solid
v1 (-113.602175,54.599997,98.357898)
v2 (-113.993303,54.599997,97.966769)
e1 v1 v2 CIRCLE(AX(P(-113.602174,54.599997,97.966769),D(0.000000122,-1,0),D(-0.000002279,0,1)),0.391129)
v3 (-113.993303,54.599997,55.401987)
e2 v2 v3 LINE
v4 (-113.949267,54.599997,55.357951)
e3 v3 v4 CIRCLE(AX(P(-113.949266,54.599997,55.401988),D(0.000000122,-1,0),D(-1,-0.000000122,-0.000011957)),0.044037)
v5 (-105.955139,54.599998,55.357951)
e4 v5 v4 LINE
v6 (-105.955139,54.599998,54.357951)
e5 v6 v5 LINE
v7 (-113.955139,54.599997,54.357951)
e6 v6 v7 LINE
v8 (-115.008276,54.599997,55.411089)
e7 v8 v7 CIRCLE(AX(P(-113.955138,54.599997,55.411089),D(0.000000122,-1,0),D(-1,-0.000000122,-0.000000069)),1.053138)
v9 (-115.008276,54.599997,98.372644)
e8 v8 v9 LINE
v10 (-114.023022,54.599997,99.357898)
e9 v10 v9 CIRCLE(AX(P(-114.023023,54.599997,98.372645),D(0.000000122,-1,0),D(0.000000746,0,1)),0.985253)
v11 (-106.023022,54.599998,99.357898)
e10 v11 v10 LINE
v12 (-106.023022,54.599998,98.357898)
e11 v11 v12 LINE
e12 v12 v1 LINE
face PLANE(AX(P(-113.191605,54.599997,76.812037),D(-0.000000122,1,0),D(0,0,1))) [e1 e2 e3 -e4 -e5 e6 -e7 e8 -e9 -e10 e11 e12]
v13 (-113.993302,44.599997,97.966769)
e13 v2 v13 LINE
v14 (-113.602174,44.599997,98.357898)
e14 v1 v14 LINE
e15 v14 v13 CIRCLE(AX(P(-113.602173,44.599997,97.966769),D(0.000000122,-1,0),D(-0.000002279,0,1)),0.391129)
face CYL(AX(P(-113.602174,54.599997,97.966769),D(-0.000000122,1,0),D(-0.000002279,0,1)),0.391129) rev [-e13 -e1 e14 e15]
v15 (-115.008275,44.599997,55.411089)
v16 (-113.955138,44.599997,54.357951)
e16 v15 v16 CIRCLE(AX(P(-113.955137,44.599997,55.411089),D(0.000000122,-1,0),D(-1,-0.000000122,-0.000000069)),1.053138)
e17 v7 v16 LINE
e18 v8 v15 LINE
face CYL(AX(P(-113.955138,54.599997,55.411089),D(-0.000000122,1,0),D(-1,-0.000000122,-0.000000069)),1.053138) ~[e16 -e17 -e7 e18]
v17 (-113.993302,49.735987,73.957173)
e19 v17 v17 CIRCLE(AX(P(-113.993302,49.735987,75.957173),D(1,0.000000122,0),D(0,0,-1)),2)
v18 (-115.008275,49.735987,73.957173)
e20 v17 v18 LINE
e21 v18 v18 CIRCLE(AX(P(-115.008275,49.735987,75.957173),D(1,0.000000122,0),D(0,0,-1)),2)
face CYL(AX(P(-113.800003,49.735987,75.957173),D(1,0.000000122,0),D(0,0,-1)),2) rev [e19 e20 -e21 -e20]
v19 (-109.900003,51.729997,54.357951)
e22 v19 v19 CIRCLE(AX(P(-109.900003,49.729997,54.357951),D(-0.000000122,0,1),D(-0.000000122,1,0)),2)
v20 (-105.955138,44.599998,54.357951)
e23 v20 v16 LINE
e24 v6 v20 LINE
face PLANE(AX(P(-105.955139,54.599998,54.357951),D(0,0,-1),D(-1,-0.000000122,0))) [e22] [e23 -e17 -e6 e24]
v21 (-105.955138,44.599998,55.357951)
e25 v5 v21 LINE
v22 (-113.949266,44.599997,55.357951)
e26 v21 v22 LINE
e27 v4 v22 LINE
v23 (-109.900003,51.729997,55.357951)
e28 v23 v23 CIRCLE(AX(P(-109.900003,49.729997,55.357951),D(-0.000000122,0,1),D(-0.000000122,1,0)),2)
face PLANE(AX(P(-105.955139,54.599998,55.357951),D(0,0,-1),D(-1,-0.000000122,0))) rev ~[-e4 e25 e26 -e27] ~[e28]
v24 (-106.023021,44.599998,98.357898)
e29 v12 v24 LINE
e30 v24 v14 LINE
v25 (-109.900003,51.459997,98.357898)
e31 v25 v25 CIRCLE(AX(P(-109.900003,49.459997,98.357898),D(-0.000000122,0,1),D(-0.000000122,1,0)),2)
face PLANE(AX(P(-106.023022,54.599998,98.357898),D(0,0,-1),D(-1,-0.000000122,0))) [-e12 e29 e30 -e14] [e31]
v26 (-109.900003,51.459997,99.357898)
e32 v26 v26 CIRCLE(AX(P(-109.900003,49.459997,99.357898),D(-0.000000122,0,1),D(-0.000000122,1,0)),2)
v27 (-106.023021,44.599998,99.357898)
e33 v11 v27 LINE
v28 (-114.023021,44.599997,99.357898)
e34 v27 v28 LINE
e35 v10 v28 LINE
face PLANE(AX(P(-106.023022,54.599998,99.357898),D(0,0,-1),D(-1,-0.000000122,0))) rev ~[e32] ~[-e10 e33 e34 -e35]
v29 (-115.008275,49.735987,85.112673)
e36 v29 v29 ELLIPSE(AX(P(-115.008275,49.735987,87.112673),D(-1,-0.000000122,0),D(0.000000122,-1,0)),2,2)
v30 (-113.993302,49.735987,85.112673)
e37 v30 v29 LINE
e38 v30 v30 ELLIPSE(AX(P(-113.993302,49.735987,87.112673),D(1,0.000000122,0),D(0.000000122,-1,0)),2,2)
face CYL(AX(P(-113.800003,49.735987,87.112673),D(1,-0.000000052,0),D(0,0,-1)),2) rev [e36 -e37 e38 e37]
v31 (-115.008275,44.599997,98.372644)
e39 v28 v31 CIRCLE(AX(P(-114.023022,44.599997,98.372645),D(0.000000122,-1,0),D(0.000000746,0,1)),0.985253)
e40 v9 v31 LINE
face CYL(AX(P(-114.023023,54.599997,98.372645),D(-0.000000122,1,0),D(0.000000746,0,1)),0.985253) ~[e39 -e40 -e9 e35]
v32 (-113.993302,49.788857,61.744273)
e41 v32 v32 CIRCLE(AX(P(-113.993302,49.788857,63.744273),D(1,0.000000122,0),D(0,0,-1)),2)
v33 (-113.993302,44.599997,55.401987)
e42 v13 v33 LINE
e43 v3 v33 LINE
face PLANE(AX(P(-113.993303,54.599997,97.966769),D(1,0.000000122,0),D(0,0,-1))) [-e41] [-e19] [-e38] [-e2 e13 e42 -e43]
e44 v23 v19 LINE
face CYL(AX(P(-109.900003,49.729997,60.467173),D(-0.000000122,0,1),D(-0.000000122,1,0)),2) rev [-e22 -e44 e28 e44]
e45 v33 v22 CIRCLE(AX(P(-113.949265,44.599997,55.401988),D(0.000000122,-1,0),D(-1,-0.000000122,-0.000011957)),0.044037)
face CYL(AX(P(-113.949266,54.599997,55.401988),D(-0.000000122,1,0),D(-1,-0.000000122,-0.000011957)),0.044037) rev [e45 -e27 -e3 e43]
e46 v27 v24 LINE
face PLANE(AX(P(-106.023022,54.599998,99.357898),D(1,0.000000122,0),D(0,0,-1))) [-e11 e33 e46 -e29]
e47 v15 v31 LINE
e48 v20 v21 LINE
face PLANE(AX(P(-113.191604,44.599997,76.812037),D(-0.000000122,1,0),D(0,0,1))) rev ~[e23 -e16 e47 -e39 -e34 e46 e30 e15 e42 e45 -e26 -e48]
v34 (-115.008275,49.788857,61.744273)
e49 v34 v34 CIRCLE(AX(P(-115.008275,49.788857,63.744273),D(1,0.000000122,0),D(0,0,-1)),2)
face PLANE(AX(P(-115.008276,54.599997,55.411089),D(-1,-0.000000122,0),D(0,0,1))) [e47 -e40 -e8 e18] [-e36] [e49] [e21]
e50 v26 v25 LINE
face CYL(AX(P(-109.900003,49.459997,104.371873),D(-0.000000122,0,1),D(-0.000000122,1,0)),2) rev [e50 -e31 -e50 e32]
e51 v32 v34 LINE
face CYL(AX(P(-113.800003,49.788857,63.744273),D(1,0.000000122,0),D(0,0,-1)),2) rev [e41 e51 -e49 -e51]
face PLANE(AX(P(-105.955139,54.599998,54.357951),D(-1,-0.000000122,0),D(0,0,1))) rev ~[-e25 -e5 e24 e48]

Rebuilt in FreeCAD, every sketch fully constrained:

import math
import FreeCAD as App
import Part
import Sketcher

V = App.Vector
Q = App.Units.Quantity

doc = App.newDocument("Part")
body = doc.addObject("PartDesign::Body", "Body")

sketch1 = body.newObject("Sketcher::SketchObject", "Sketch")
sketch1.AttachmentSupport = (doc.getObject("XY_Plane"), [""])
sketch1.MapMode = "FlatFace"
sketch1.addGeometry(Part.Circle(V(0, 0, 0), V(0, 0, 1), 2), False)
sketch1.addConstraint([
    Sketcher.Constraint("Coincident", 0, 3, -1, 1),
    Sketcher.Constraint("Diameter", 0, Q("4 mm")),
])
pad1 = body.newObject("PartDesign::Pad", "Pad")
pad1.Profile = sketch1
pad1.Length = 10
body2 = doc.addObject("PartDesign::Body", "Body001")
doc.recompute()

body.Placement = App.Placement(V(0, 0, 0), App.Rotation(V(0, 1, 0), 90))
boolean = body2.newObject("PartDesign::Boolean", "Boolean")
boolean.Type = "Fuse"
boolean.addObjects([body])
body3 = doc.addObject("PartDesign::Body", "Body002")
doc.recompute()

body2.Placement = App.Placement(V(15.49, 3.9, 4.87), App.Rotation(V(0, 0, 1), 0.000007))
boolean2 = body3.newObject("PartDesign::Boolean", "Boolean001")
boolean2.Type = "Fuse"
boolean2.addObjects([body2])
body4 = doc.addObject("PartDesign::Body", "Body003")

sketch2 = body4.newObject("Sketcher::SketchObject", "Sketch001")
sketch2.AttachmentSupport = (doc.getObject("XY_Plane003"), [""])
sketch2.MapMode = "FlatFace"
sketch2.addGeometry(Part.Circle(V(0, 0, 0), V(0, 0, 1), 2), False)
sketch2.addConstraint([
    Sketcher.Constraint("Coincident", 0, 3, -1, 1),
    Sketcher.Constraint("Diameter", 0, Q("4 mm")),
])
pad2 = body4.newObject("PartDesign::Pad", "Pad001")
pad2.Profile = sketch2
pad2.Length = 10
body5 = doc.addObject("PartDesign::Body", "Body004")
doc.recompute()

body4.Placement = App.Placement(V(0, 0, 0), App.Rotation(V(0, 1, 0), 90))
boolean3 = body5.newObject("PartDesign::Boolean", "Boolean002")
boolean3.Type = "Fuse"
boolean3.addObjects([body4])
body6 = doc.addObject("PartDesign::Body", "Body005")
doc.recompute()

body5.Placement = App.Placement(V(-28.4147, 3.9, 5.14), App.Rotation(V(0, 0, 1), 0.000007))
boolean4 = body6.newObject("PartDesign::Boolean", "Boolean003")
boolean4.Type = "Fuse"
boolean4.addObjects([body5])
body7 = doc.addObject("PartDesign::Body", "Body006")

sketch3 = body7.newObject("Sketcher::SketchObject", "Sketch002")
sketch3.AttachmentSupport = (doc.getObject("XY_Plane006"), [""])
sketch3.MapMode = "FlatFace"
sketch3.addGeometry(Part.Circle(V(0, 0, 0), V(0, 0, 1), 2), False)
sketch3.addConstraint([
    Sketcher.Constraint("Coincident", 0, 3, -1, 1),
    Sketcher.Constraint("Diameter", 0, Q("4 mm")),
])
pad3 = body7.newObject("PartDesign::Pad", "Pad002")
pad3.Profile = sketch3
pad3.Length = 2
body8 = doc.addObject("PartDesign::Body", "Body007")
doc.recompute()

body7.Placement = App.Placement(V(0, 0, 0), App.Rotation(V(1, 0, 0), 271.492946))
boolean5 = body8.newObject("PartDesign::Boolean", "Boolean004")
boolean5.Type = "Fuse"
boolean5.addObjects([body7])
body9 = doc.addObject("PartDesign::Body", "Body008")
doc.recompute()

body8.Placement = App.Placement(V(0, 0, 0), App.Rotation(V(0, 1, 0), 272.98249))
boolean6 = body9.newObject("PartDesign::Boolean", "Boolean005")
boolean6.Type = "Fuse"
boolean6.addObjects([body8])
body10 = doc.addObject("PartDesign::Body", "Body009")
doc.recompute()

body9.Placement = App.Placement(V(-26, 5.29, 4.9), App.Rotation(V(0, 0, 1), 267.755985))
boolean7 = body10.newObject("PartDesign::Boolean", "Boolean006")
boolean7.Type = "Fuse"
boolean7.addObjects([body9])
body11 = doc.addObject("PartDesign::Body", "Body010")

sketch4 = body11.newObject("Sketcher::SketchObject", "Sketch003")
sketch4.AttachmentSupport = (doc.getObject("XY_Plane010"), [""])
sketch4.MapMode = "FlatFace"
sketch4.addGeometry(Part.Circle(V(0, 0, 0), V(0, 0, 1), 2), False)
sketch4.addConstraint([
    Sketcher.Constraint("Coincident", 0, 3, -1, 1),
    Sketcher.Constraint("Diameter", 0, Q("4 mm")),
])
pad4 = body11.newObject("PartDesign::Pad", "Pad003")
pad4.Profile = sketch4
pad4.Length = 2
body12 = doc.addObject("PartDesign::Body", "Body011")
doc.recompute()

body11.Placement = App.Placement(V(-11.1555, 0, 4.86401), App.Rotation(V(1, 0, 0), 90.00001))
boolean8 = body12.newObject("PartDesign::Boolean", "Boolean007")
boolean8.Type = "Fuse"
boolean8.addObjects([body11])
body13 = doc.addObject("PartDesign::Body", "Body012")

sketch5 = body13.newObject("Sketcher::SketchObject", "Sketch004")
sketch5.AttachmentSupport = (doc.getObject("XY_Plane012"), [""])
sketch5.MapMode = "FlatFace"
sketch5.addGeometry(Part.Circle(V(0, 0, 0), V(0, 0, 1), 2), False)
sketch5.addConstraint([
    Sketcher.Constraint("Coincident", 0, 3, -1, 1),
    Sketcher.Constraint("Diameter", 0, Q("4 mm")),
])
pad5 = body13.newObject("PartDesign::Pad", "Pad004")
pad5.Profile = sketch5
pad5.Length = 2
body14 = doc.addObject("PartDesign::Body", "Body013")
doc.recompute()

body13.Placement = App.Placement(V(0, 0, 0), App.Rotation(V(1, 0, 0), 90))
boolean9 = body14.newObject("PartDesign::Boolean", "Boolean008")
boolean9.Type = "Fuse"
boolean9.addObjects([body13])
body15 = doc.addObject("PartDesign::Body", "Body014")
doc.recompute()

body14.Placement = App.Placement(V(0, 0, 4.86401), App.Rotation(V(0, 0, 1), 0))
boolean10 = body15.newObject("PartDesign::Boolean", "Boolean009")
boolean10.Type = "Fuse"
boolean10.addObjects([body14])
body16 = doc.addObject("PartDesign::Body", "Body015")

sketch6 = body16.newObject("Sketcher::SketchObject", "Sketch005")
sketch6.AttachmentSupport = (doc.getObject("XY_Plane015"), [""])
sketch6.MapMode = "FlatFace"
sketch6.addGeometry(Part.Circle(V(0, 0, 0), V(0, 0, 1), 2), False)
sketch6.addConstraint([
    Sketcher.Constraint("Coincident", 0, 3, -1, 1),
    Sketcher.Constraint("Diameter", 0, Q("4 mm")),
])
pad6 = body16.newObject("PartDesign::Pad", "Pad005")
pad6.Profile = sketch6
pad6.Length = 2
body17 = doc.addObject("PartDesign::Body", "Body016")
doc.recompute()

body16.Placement = App.Placement(V(0, 0, 0), App.Rotation(V(1, 0, 0), 90))
boolean11 = body17.newObject("PartDesign::Boolean", "Boolean010")
boolean11.Type = "Fuse"
boolean11.addObjects([body16])
body18 = doc.addObject("PartDesign::Body", "Body017")
doc.recompute()

body17.Placement = App.Placement(V(12.2129, 0, 4.81114), App.Rotation(V(0, 0, 1), 0))
boolean12 = body18.newObject("PartDesign::Boolean", "Boolean011")
boolean12.Type = "Fuse"
boolean12.addObjects([body17])
body19 = doc.addObject("PartDesign::Body", "Body018")

sketch7 = body19.newObject("Sketcher::SketchObject", "Sketch006")
sketch7.AttachmentSupport = (doc.getObject("XY_Plane018"), [""])
sketch7.MapMode = "FlatFace"
sketch7.addGeometry(Part.Circle(V(0, 0, 0), V(0, 0, 1), 2), False)
sketch7.addConstraint([
    Sketcher.Constraint("Coincident", 0, 3, -1, 1),
    Sketcher.Constraint("Diameter", 0, Q("4 mm")),
])
pad7 = body19.newObject("PartDesign::Pad", "Pad006")
pad7.Profile = sketch7
pad7.Length = 2
body20 = doc.addObject("PartDesign::Body", "Body019")
doc.recompute()

body19.Placement = App.Placement(V(0, 0, 0), App.Rotation(V(1, 0, 0), 271.492946))
boolean13 = body20.newObject("PartDesign::Boolean", "Boolean012")
boolean13.Type = "Fuse"
boolean13.addObjects([body19])
body21 = doc.addObject("PartDesign::Body", "Body020")
doc.recompute()

body20.Placement = App.Placement(V(0, 0, 0), App.Rotation(V(0, 1, 0), 272.98249))
boolean14 = body21.newObject("PartDesign::Boolean", "Boolean013")
boolean14.Type = "Fuse"
boolean14.addObjects([body20])
body22 = doc.addObject("PartDesign::Body", "Body021")
doc.recompute()

body21.Placement = App.Placement(V(25, 5.38, 4.9), App.Rotation(V(0, 0, 1), 267.755985))
boolean15 = body22.newObject("PartDesign::Boolean", "Boolean014")
boolean15.Type = "Fuse"
boolean15.addObjects([body21])
body23 = doc.addObject("PartDesign::Body", "Body022")

sketch8 = body23.newObject("Sketcher::SketchObject", "Sketch007")
sketch8.AttachmentSupport = (doc.getObject("XY_Plane022"), [""])
sketch8.MapMode = "FlatFace"
sketch8.addGeometry([
    Part.LineSegment(V(-22.415471, -1.208272, 0), V(20.546084, -1.208272, 0)),
    Part.ArcOfCircle(Part.Circle(V(20.546084, -0.155134, 0), V(0, 0, 1), 1.053138), math.radians(-89.999996), math.radians(-0.000058)),
    Part.LineSegment(V(21.599222, -0.155135, 0), V(21.599222, 7.844865, 0)),
    Part.LineSegment(V(21.599222, 7.844865, 0), V(20.599222, 7.844865, 0)),
    Part.LineSegment(V(20.599222, 7.844865, 0), V(20.599222, -0.149263, 0)),
    Part.ArcOfCircle(Part.Circle(V(20.555185, -0.149262, 0), V(0, 0, 1), 0.044037), math.radians(-89.999314), math.radians(-0.000686)),
    Part.LineSegment(V(20.555186, -0.193299, 0), V(-22.009596, -0.193299, 0)),
    Part.ArcOfCircle(Part.Circle(V(-22.009596, 0.19783, 0), V(0, 0, 1), 0.391129), math.radians(-179.999869), math.radians(-89.999984)),
    Part.LineSegment(V(-22.400725, 0.197829, 0), V(-22.400725, 7.776982, 0)),
    Part.LineSegment(V(-22.400725, 7.776982, 0), V(-23.400725, 7.776982, 0)),
    Part.LineSegment(V(-23.400725, 7.776982, 0), V(-23.400725, -0.223018, 0)),
    Part.ArcOfCircle(Part.Circle(V(-22.415472, -0.223019, 0), V(0, 0, 1), 0.985253), math.radians(179.999957), math.radians(270.000043)),
], False)
sketch8.addConstraint([
    Sketcher.Constraint("Tangent", 0, 2, 1, 1),
    Sketcher.Constraint("Tangent", 1, 2, 2, 1),
    Sketcher.Constraint("Coincident", 2, 2, 3, 1),
    Sketcher.Constraint("Coincident", 3, 2, 4, 1),
    Sketcher.Constraint("Coincident", 4, 2, 5, 2),
    Sketcher.Constraint("Coincident", 5, 1, 6, 1),
    Sketcher.Constraint("Tangent", 6, 2, 7, 2),
    Sketcher.Constraint("Coincident", 7, 1, 8, 1),
    Sketcher.Constraint("Coincident", 8, 2, 9, 1),
    Sketcher.Constraint("Coincident", 9, 2, 10, 1),
    Sketcher.Constraint("Tangent", 10, 2, 11, 1),
    Sketcher.Constraint("Tangent", 11, 2, 0, 1),
    Sketcher.Constraint("Horizontal", 0),
    Sketcher.Constraint("Vertical", 2),
    Sketcher.Constraint("Horizontal", 3),
    Sketcher.Constraint("Vertical", 4),
    Sketcher.Constraint("Horizontal", 6),
    Sketcher.Constraint("Vertical", 8),
    Sketcher.Constraint("Horizontal", 9),
    Sketcher.Constraint("Vertical", 10),
    Sketcher.Constraint("Horizontal", 5, 3, 4, 2),
    Sketcher.Constraint("Equal", 3, 9),
    Sketcher.Constraint("Equal", 2, 10),
    Sketcher.Constraint("DistanceX", 3, 2, 3, 1, Q("1 mm")),
    Sketcher.Constraint("DistanceY", 2, 1, 2, 2, Q("8 mm")),
    Sketcher.Constraint("Radius", 1, Q("1.053138 mm")),
    Sketcher.Constraint("Radius", 7, Q("0.391129 mm")),
    Sketcher.Constraint("Radius", 5, Q("0.044037 mm")),
    Sketcher.Constraint("Radius", 11, Q("0.985253 mm")),
    Sketcher.Constraint("DistanceX", 6, 2, 6, 1, Q("42.564782 mm")),
    Sketcher.Constraint("DistanceY", 4, 2, 4, 1, Q("7.994128 mm")),
    Sketcher.Constraint("DistanceY", 5, 1, -1, 1, Q("0.193299 mm")),
    Sketcher.Constraint("DistanceX", 0, 2, 5, 1, Q("0.009102 mm")),
    Sketcher.Constraint("DistanceY", 11, 2, 7, 1, Q("1.406101 mm")),
    Sketcher.Constraint("DistanceX", 11, 3, -1, 1, Q("22.415472 mm")),
])
pad8 = body23.newObject("PartDesign::Pad", "Pad007")
pad8.Profile = sketch8
pad8.Length = 10
doc.recompute()

boolean16 = body23.newObject("PartDesign::Boolean", "Boolean015")
boolean16.Type = "Cut"
boolean16.addObjects([body22])
doc.recompute()

boolean17 = body23.newObject("PartDesign::Boolean", "Boolean016")
boolean17.Type = "Cut"
boolean17.addObjects([body18])
doc.recompute()

boolean18 = body23.newObject("PartDesign::Boolean", "Boolean017")
boolean18.Type = "Cut"
boolean18.addObjects([body15])
doc.recompute()

boolean19 = body23.newObject("PartDesign::Boolean", "Boolean018")
boolean19.Type = "Cut"
boolean19.addObjects([body12])
doc.recompute()

boolean20 = body23.newObject("PartDesign::Boolean", "Boolean019")
boolean20.Type = "Cut"
boolean20.addObjects([body10])
doc.recompute()

boolean21 = body23.newObject("PartDesign::Boolean", "Boolean020")
boolean21.Type = "Cut"
boolean21.addObjects([body6])
doc.recompute()

boolean22 = body23.newObject("PartDesign::Boolean", "Boolean021")
boolean22.Type = "Cut"
boolean22.addObjects([body3])
body24 = doc.addObject("PartDesign::Body", "Body023")
doc.recompute()

body23.Placement = App.Placement(V(0, 0, 0), App.Rotation(V(0, 1, 0), 90))
boolean23 = body24.newObject("PartDesign::Boolean", "Boolean022")
boolean23.Type = "Fuse"
boolean23.addObjects([body23])
body25 = doc.addObject("PartDesign::Body", "Body024")
doc.recompute()

body24.Placement = App.Placement(V(-113.800004, 54.599997, 75.957173), App.Rotation(V(0, 0, 1), 270.000007))
boolean24 = body25.newObject("PartDesign::Boolean", "Boolean023")
boolean24.Type = "Fuse"
boolean24.addObjects([body24])

doc.recompute()
